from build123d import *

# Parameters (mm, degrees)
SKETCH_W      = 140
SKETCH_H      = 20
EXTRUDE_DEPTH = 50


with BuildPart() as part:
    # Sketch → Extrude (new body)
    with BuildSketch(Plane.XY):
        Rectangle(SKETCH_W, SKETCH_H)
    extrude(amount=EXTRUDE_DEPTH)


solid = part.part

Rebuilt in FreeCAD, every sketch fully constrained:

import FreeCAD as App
import Part
import Sketcher


def add_polygon(sketch, points):
    """Adds a closed chain of lines whose ends are joined by coincident constraints."""
    first, n = sketch.GeometryCount, len(points)
    for a, b in zip(points, points[1:] + points[:1]):
        sketch.addGeometry(Part.LineSegment(App.Vector(*a, 0), App.Vector(*b, 0)), False)
    for i in range(n):
        sketch.addConstraint(Sketcher.Constraint("Coincident", first + i, 2, first + (i + 1) % n, 1))

doc = App.newDocument("Part")
params = doc.addObject("Spreadsheet::Sheet", "Params")
for row, (alias, value) in enumerate([
    ("sketch1_width", "140 mm"),
    ("sketch1_height", "20 mm"),
    ("pad1_length", "50 mm"),
], start=1):
    params.set(f"A{row}", alias)
    params.set(f"B{row}", "=" + value)
    params.setAlias(f"B{row}", alias)

body = doc.addObject("PartDesign::Body", "Body")

# Sketch on XY plane
sketch1 = body.newObject("Sketcher::SketchObject", "Sketch")
sketch1.AttachmentSupport = (doc.getObject("XY_Plane"), [""])
sketch1.MapMode = "FlatFace"
add_polygon(sketch1, [(-70, 10), (-70, -10), (70, -10), (70, 10)])  # lines 0-3
sketch1.addConstraint([
    Sketcher.Constraint("Vertical", 0),
    Sketcher.Constraint("Horizontal", 1),
    Sketcher.Constraint("Vertical", 2),
    Sketcher.Constraint("Horizontal", 3),
    Sketcher.Constraint("Symmetric", 0, 2, 2, 2, -1, 1),
    Sketcher.Constraint("DistanceX", 1, 1, 1, 2, 140.0),
    Sketcher.Constraint("DistanceY", 0, 2, 0, 1, 20.0),
])
sketch1.setExpression("Constraints[9]", "Params.sketch1_width")
sketch1.setExpression("Constraints[10]", "Params.sketch1_height")
pad1 = body.newObject("PartDesign::Pad", "Pad")
pad1.Profile = sketch1
pad1.setExpression("Length", "Params.pad1_length")

doc.recompute()
